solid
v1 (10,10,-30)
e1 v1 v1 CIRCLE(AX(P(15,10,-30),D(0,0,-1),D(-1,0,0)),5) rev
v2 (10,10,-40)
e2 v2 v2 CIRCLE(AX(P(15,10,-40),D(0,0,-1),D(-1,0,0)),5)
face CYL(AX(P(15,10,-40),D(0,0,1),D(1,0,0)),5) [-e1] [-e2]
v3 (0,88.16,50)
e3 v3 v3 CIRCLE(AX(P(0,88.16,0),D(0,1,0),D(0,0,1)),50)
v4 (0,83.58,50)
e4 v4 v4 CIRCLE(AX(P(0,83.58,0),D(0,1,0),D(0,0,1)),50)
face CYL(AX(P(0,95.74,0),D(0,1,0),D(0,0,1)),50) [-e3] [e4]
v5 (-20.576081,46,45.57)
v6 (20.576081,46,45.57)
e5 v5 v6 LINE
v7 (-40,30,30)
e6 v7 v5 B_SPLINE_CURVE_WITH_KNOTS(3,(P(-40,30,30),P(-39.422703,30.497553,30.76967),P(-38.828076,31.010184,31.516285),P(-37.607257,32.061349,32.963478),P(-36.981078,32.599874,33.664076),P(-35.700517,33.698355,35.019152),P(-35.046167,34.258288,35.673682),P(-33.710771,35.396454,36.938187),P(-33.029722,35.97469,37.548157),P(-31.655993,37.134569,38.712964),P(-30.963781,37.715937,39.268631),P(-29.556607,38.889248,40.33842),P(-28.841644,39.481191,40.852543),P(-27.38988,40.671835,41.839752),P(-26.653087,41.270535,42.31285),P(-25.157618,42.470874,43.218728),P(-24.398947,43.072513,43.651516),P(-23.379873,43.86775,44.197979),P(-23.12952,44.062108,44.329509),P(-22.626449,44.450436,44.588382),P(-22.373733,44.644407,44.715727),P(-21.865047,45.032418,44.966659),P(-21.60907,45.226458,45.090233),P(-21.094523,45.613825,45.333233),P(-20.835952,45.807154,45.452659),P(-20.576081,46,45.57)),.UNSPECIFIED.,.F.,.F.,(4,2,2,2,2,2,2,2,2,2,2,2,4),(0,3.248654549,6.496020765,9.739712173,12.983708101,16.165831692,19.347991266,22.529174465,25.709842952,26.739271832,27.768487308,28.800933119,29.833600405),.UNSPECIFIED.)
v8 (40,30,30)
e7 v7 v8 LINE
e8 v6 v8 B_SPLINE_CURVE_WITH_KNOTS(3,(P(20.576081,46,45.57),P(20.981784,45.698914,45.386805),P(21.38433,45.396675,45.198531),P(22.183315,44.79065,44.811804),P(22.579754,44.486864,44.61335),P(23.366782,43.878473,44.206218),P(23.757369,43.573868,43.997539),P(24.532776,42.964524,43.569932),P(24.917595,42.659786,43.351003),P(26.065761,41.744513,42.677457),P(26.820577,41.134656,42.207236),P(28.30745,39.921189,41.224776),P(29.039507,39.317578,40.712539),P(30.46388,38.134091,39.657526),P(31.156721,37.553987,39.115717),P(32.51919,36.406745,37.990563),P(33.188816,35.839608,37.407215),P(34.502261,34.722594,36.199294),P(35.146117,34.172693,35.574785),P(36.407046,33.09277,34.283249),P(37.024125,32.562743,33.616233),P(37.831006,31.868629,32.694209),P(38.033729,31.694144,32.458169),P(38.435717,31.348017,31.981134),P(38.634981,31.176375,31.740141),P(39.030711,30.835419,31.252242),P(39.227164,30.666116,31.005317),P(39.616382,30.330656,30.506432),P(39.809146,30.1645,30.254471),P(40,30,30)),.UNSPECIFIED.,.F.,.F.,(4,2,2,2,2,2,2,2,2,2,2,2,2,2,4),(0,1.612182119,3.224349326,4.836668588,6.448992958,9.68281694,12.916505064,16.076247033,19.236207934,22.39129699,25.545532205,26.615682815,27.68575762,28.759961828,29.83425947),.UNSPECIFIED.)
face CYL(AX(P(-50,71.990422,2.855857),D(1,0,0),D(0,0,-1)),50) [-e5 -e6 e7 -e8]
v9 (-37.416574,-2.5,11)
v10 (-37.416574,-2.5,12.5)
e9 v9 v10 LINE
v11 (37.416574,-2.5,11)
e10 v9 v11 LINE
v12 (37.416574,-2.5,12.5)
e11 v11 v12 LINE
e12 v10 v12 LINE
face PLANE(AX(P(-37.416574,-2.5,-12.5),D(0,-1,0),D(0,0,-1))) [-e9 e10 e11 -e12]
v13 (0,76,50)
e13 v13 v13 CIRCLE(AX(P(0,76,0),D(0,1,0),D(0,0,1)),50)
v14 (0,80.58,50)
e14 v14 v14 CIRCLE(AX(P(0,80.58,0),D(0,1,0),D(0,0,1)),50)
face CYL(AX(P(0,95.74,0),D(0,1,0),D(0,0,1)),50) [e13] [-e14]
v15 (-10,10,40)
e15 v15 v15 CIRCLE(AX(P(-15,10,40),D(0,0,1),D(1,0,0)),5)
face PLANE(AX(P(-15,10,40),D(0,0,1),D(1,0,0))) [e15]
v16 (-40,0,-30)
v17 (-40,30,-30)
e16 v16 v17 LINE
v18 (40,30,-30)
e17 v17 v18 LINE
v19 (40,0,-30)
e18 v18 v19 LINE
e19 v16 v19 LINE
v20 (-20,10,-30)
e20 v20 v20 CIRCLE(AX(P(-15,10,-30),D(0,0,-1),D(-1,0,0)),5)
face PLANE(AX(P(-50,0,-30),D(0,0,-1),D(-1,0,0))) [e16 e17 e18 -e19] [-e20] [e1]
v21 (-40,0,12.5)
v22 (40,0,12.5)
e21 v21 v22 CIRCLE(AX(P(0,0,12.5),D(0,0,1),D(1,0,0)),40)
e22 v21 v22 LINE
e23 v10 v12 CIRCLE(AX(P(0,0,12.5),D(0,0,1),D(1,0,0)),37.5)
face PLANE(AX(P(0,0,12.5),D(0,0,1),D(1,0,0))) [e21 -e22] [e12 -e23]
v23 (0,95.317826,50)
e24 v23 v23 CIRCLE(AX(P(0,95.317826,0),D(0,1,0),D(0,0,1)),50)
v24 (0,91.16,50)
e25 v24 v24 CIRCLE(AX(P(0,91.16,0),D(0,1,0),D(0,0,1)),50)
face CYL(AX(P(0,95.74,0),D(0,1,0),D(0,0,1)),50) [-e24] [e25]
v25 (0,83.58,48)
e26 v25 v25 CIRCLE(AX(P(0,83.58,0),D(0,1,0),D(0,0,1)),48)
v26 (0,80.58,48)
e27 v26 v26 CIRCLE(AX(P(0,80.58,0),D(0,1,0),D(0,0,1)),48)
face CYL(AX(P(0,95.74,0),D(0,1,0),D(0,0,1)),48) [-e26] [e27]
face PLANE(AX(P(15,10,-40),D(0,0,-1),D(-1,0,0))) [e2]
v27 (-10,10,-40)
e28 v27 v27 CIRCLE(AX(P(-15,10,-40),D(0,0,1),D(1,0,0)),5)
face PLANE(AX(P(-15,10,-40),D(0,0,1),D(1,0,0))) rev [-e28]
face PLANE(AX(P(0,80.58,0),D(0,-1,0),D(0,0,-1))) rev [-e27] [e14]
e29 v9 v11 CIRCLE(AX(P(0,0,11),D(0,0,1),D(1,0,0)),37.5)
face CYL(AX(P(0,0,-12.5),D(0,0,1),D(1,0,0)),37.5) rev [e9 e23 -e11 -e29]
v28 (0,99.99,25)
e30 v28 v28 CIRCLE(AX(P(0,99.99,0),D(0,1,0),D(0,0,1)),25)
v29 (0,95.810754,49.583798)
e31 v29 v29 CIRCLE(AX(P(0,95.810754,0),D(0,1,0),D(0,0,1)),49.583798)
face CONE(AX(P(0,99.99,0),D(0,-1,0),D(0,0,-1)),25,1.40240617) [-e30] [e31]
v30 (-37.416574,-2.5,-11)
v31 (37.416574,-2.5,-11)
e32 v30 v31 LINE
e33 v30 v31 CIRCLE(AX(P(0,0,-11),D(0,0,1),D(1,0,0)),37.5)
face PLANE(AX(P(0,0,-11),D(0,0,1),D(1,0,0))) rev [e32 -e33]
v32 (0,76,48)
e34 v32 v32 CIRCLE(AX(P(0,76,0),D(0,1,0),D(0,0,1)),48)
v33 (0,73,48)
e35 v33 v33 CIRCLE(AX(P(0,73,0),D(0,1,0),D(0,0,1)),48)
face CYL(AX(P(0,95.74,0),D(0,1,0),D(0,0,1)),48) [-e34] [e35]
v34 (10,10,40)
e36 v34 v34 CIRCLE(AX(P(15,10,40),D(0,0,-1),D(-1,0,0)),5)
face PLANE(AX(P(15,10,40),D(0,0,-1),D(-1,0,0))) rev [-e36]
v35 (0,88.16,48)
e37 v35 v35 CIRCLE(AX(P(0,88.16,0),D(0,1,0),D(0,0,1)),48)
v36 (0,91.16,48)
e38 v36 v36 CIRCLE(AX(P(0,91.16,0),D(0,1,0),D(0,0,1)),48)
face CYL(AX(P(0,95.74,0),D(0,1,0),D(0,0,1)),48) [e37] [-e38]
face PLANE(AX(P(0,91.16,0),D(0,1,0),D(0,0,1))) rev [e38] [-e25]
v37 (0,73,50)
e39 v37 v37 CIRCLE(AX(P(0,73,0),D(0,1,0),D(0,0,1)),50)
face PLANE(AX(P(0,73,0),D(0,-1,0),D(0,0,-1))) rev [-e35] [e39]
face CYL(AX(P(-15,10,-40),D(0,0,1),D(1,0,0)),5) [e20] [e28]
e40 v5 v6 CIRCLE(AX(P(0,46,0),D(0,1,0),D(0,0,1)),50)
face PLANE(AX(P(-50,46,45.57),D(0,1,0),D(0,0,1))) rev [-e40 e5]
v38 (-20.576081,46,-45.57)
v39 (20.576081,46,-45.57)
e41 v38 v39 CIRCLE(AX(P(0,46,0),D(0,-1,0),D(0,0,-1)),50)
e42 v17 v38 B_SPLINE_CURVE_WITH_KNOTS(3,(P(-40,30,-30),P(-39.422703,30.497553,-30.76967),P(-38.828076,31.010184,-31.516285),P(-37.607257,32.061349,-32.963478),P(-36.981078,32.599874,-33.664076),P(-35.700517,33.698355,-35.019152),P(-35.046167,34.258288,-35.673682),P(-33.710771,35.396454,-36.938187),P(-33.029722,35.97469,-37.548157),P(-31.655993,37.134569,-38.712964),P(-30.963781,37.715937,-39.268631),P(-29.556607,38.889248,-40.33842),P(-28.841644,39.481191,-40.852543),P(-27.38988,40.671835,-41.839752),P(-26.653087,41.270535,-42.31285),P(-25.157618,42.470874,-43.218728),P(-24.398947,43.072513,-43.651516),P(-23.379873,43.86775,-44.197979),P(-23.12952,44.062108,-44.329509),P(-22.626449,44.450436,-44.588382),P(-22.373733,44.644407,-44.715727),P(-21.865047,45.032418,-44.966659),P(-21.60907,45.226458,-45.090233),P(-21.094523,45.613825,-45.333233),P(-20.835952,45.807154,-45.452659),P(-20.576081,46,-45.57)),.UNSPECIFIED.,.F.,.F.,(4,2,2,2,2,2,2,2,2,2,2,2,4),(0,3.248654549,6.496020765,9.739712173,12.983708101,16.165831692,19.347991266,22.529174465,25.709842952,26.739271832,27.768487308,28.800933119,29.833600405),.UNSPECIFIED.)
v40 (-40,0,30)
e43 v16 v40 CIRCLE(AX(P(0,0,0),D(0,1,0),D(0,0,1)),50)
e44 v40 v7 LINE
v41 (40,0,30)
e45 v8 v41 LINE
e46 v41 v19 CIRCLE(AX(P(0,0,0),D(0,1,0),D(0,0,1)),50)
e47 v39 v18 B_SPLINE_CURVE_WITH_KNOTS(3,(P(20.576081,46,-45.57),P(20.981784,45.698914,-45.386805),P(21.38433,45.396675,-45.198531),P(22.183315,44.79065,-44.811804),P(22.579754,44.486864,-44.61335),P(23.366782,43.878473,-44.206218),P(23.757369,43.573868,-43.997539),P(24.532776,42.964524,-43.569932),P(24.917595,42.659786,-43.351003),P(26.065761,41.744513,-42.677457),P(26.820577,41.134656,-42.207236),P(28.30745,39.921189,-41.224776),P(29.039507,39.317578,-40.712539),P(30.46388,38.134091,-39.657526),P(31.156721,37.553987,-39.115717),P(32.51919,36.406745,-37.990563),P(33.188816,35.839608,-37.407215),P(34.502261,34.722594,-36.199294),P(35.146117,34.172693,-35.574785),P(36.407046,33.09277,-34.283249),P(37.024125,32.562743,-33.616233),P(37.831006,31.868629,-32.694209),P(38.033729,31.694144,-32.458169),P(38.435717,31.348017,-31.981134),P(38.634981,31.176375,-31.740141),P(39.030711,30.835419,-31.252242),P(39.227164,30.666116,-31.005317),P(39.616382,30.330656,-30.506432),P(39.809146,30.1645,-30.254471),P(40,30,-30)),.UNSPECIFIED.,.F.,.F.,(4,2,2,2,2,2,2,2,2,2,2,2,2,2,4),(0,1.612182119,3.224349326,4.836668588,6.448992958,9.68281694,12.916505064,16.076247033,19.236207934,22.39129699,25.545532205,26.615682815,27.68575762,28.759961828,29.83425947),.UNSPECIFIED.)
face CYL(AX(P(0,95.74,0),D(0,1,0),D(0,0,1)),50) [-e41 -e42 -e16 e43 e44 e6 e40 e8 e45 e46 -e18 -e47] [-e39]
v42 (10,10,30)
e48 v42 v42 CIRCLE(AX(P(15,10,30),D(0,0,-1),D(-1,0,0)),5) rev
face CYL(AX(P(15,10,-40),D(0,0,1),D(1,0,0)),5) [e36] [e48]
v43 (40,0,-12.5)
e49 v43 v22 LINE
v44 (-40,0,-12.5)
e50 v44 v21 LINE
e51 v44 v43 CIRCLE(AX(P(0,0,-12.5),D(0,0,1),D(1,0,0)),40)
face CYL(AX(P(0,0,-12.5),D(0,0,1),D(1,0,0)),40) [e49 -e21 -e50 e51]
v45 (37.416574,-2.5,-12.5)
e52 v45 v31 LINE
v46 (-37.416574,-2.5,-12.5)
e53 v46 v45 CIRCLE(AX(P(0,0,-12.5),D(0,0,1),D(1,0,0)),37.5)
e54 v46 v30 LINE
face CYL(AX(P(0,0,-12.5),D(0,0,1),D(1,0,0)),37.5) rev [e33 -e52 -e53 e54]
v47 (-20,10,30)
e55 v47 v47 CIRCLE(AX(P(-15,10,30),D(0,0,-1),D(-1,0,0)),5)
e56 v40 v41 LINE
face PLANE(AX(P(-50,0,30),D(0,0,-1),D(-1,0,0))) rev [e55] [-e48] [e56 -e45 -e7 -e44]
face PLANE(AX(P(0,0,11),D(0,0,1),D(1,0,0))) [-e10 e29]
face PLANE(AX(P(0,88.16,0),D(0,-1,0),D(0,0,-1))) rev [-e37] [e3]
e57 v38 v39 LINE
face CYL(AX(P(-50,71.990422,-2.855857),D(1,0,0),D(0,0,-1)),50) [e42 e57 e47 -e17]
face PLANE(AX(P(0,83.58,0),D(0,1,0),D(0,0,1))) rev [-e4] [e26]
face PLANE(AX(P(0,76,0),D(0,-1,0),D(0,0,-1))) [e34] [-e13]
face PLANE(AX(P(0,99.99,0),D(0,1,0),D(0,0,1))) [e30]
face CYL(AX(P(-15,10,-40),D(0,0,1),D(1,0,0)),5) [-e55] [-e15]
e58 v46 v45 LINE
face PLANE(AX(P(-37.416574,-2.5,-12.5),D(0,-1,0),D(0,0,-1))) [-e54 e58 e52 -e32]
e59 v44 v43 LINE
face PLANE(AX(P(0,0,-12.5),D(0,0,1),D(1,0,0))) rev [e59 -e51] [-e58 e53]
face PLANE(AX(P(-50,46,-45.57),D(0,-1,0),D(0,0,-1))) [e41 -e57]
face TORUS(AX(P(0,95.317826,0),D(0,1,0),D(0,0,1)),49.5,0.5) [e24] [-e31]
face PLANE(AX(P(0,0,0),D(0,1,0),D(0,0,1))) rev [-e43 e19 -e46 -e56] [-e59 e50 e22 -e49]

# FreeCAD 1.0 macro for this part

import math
import FreeCAD as App
import Part
import Sketcher
Q = App.Units.Quantity

doc = App.newDocument("Part")
params = doc.addObject("Spreadsheet::Sheet", "Params")
for row, (alias, value) in enumerate([
    ("sketch1_radius", "0.5 mm"),
    ("sketch1_width", "2 mm"),
    ("sketch1_width2", "50 mm"),
    ("sketch1_width3", "25 mm"),
    ("sketch1_height", "3 mm"),
    ("revolution_angle", "360 deg"),
    ("sketch2_radius", "50 mm"),
    ("sketch2_width", "30 mm"),
    ("sketch2_width2", "46 mm"),
    ("sketch2_height", "20 mm"),
    ("sketch2_height2", "4.43 mm"),
    ("sketch3_radius", "40 mm"),
    ("sketch3_radius2", "37.5 mm"),
    ("pad1_length", "12.5 mm"),
    ("pad1_length2", "12.5 mm"),
    ("sketch4_radius", "37.5 mm"),
    ("pad2_length", "11 mm"),
    ("pad2_length2", "11 mm"),
    ("sketch5_diameter", "10 mm"),
    ("pad3_length", "40 mm"),
    ("pad3_length2", "40 mm"),
], start=1):
    params.set(f"A{row}", alias)
    params.set(f"B{row}", "=" + value)
    params.setAlias(f"B{row}", alias)

body = doc.addObject("PartDesign::Body", "Body")

# Sketch on XY plane
sketch1 = body.newObject("Sketcher::SketchObject", "Sketch")
sketch1.AttachmentSupport = (doc.getObject("XY_Plane"), [""])
sketch1.MapMode = "FlatFace"
sketch1.addGeometry([
    Part.ArcOfCircle(Part.Circle(App.Vector(-49.5, 95.32, 0), App.Vector(0, 0, 1), 0.5), math.radians(100), math.radians(180)),  # 0
    Part.LineSegment(App.Vector(-50, 95.32, 0), App.Vector(-50, 91.16, 0)),  # 1
    Part.LineSegment(App.Vector(-50, 91.16, 0), App.Vector(-48, 91.16, 0)),  # 2
    Part.LineSegment(App.Vector(-48, 91.16, 0), App.Vector(-48, 88.16, 0)),  # 3
    Part.LineSegment(App.Vector(-48, 88.16, 0), App.Vector(-50, 88.16, 0)),  # 4
    Part.LineSegment(App.Vector(-50, 88.16, 0), App.Vector(-50, 83.58, 0)),  # 5
    Part.LineSegment(App.Vector(-50, 83.58, 0), App.Vector(-48, 83.58, 0)),  # 6
    Part.LineSegment(App.Vector(-48, 83.58, 0), App.Vector(-48, 80.58, 0)),  # 7
    Part.LineSegment(App.Vector(-48, 80.58, 0), App.Vector(-50, 80.58, 0)),  # 8
    Part.LineSegment(App.Vector(-50, 80.58, 0), App.Vector(-50, 76, 0)),  # 9
    Part.LineSegment(App.Vector(-50, 76, 0), App.Vector(-48, 76, 0)),  # 10
    Part.LineSegment(App.Vector(-48, 76, 0), App.Vector(-48, 73, 0)),  # 11
    Part.LineSegment(App.Vector(-48, 73, 0), App.Vector(-50, 73, 0)),  # 12
    Part.LineSegment(App.Vector(-50, 73, 0), App.Vector(-50, 0, 0)),  # 13
    Part.LineSegment(App.Vector(-50, 0, 0), App.Vector(0, 0, 0)),  # 14
    Part.LineSegment(App.Vector(0, 0, 0), App.Vector(0, 99.99, 0)),  # 15
    Part.LineSegment(App.Vector(0, 99.99, 0), App.Vector(-25, 99.99, 0)),  # 16
    Part.LineSegment(App.Vector(-25, 99.99, 0), App.Vector(-49.58, 95.81, 0)),  # 17
], False)
sketch1.addConstraint([
    Sketcher.Constraint("Tangent", 0, 2, 1, 1),
    Sketcher.Constraint("Coincident", 1, 2, 2, 1),
    Sketcher.Constraint("Coincident", 2, 2, 3, 1),
    Sketcher.Constraint("Coincident", 3, 2, 4, 1),
    Sketcher.Constraint("Coincident", 4, 2, 5, 1),
    Sketcher.Constraint("Coincident", 5, 2, 6, 1),
    Sketcher.Constraint("Coincident", 6, 2, 7, 1),
    Sketcher.Constraint("Coincident", 7, 2, 8, 1),
    Sketcher.Constraint("Coincident", 8, 2, 9, 1),
    Sketcher.Constraint("Coincident", 9, 2, 10, 1),
    Sketcher.Constraint("Coincident", 10, 2, 11, 1),
    Sketcher.Constraint("Coincident", 11, 2, 12, 1),
    Sketcher.Constraint("Coincident", 12, 2, 13, 1),
    Sketcher.Constraint("Coincident", 13, 2, 14, 1),
    Sketcher.Constraint("Coincident", 14, 2, 15, 1),
    Sketcher.Constraint("Coincident", 15, 2, 16, 1),
    Sketcher.Constraint("Coincident", 16, 2, 17, 1),
    Sketcher.Constraint("Tangent", 17, 2, 0, 1),
    Sketcher.Constraint("Vertical", 1),
    Sketcher.Constraint("Horizontal", 2),
    Sketcher.Constraint("Vertical", 3),
    Sketcher.Constraint("Horizontal", 4),
    Sketcher.Constraint("Vertical", 5),
    Sketcher.Constraint("Horizontal", 6),
    Sketcher.Constraint("Vertical", 7),
    Sketcher.Constraint("Horizontal", 8),
    Sketcher.Constraint("Vertical", 9),
    Sketcher.Constraint("Horizontal", 10),
    Sketcher.Constraint("Vertical", 11),
    Sketcher.Constraint("Horizontal", 12),
    Sketcher.Constraint("Vertical", 13),
    Sketcher.Constraint("Horizontal", 14),
    Sketcher.Constraint("Vertical", 15),
    Sketcher.Constraint("Horizontal", 16),
    Sketcher.Constraint("Coincident", 14, 2, -1, 1),
    Sketcher.Constraint("Vertical", 1, 2, 4, 2),
    Sketcher.Constraint("Vertical", 3, 2, 6, 2),
    Sketcher.Constraint("Vertical", 5, 2, 8, 2),
    Sketcher.Constraint("Vertical", 7, 2, 10, 2),
    Sketcher.Constraint("Vertical", 9, 2, 12, 2),
    Sketcher.Constraint("Equal", 3, 7),
    Sketcher.Constraint("Equal", 5, 9),
    Sketcher.Constraint("Equal", 7, 11),
    Sketcher.Constraint("Radius", 0, Q("0.5 mm")),
    Sketcher.Constraint("DistanceX", 2, 1, 2, 2, Q("2 mm")),
    Sketcher.Constraint("DistanceX", 14, 1, 14, 2, Q("50 mm")),
    Sketcher.Constraint("DistanceX", 16, 2, 16, 1, Q("25 mm")),
    Sketcher.Constraint("DistanceY", 3, 2, 3, 1, Q("3 mm")),
    Sketcher.Constraint("DistanceY", 13, 2, 13, 1, Q("73 mm")),
    Sketcher.Constraint("DistanceY", 5, 2, 5, 1, Q("4.58 mm")),
    Sketcher.Constraint("DistanceY", 15, 1, 15, 2, Q("99.99 mm")),
    Sketcher.Constraint("DistanceY", 1, 2, 1, 1, Q("4.157826 mm")),
])
sketch1.setExpression("Constraints[43]", "Params.sketch1_radius")
sketch1.setExpression("Constraints[44]", "Params.sketch1_width")
sketch1.setExpression("Constraints[45]", "Params.sketch1_width2")
sketch1.setExpression("Constraints[46]", "Params.sketch1_width3")
sketch1.setExpression("Constraints[47]", "Params.sketch1_height")
revolution = body.newObject("PartDesign::Revolution", "Revolution")
revolution.Profile = sketch1
revolution.ReferenceAxis = (sketch1, ["V_Axis"])
revolution.setExpression("Angle", "Params.revolution_angle")

# Sketch on YZ plane
sketch2 = body.newObject("Sketcher::SketchObject", "Sketch001")
sketch2.AttachmentSupport = (doc.getObject("YZ_Plane"), [""])
sketch2.MapMode = "FlatFace"
sketch2.addGeometry([
    Part.LineSegment(App.Vector(30, -30, 0), App.Vector(0, -30, 0)),  # 0
    Part.LineSegment(App.Vector(0, -30, 0), App.Vector(0, -50, 0)),  # 1
    Part.LineSegment(App.Vector(0, -50, 0), App.Vector(46, -50, 0)),  # 2
    Part.LineSegment(App.Vector(46, -50, 0), App.Vector(46, -45.6, 0)),  # 3
    Part.ArcOfCircle(Part.Circle(App.Vector(72, -2.9, 0), App.Vector(0, 0, 1), 50), math.radians(-147), math.radians(-121)),  # 4
    Part.LineSegment(App.Vector(0, 30, 0), App.Vector(30, 30, 0)),  # 5
    Part.ArcOfCircle(Part.Circle(App.Vector(72, 2.9, 0), App.Vector(0, 0, 1), 50), math.radians(121), math.radians(147)),  # 6
    Part.LineSegment(App.Vector(46, 45.6, 0), App.Vector(46, 50, 0)),  # 7
    Part.LineSegment(App.Vector(46, 50, 0), App.Vector(0, 50, 0)),  # 8
    Part.LineSegment(App.Vector(0, 50, 0), App.Vector(0, 30, 0)),  # 9
], False)
sketch2.addConstraint([
    Sketcher.Constraint("Coincident", 0, 2, 1, 1),
    Sketcher.Constraint("Coincident", 1, 2, 2, 1),
    Sketcher.Constraint("Coincident", 2, 2, 3, 1),
    Sketcher.Constraint("Coincident", 3, 2, 4, 2),
    Sketcher.Constraint("Coincident", 4, 1, 0, 1),
    Sketcher.Constraint("Coincident", 5, 2, 6, 2),
    Sketcher.Constraint("Coincident", 6, 1, 7, 1),
    Sketcher.Constraint("Coincident", 7, 2, 8, 1),
    Sketcher.Constraint("Coincident", 8, 2, 9, 1),
    Sketcher.Constraint("Coincident", 9, 2, 5, 1),
    Sketcher.Constraint("Horizontal", 0),
    Sketcher.Constraint("Vertical", 1),
    Sketcher.Constraint("Horizontal", 2),
    Sketcher.Constraint("Vertical", 3),
    Sketcher.Constraint("Horizontal", 5),
    Sketcher.Constraint("Vertical", 7),
    Sketcher.Constraint("Horizontal", 8),
    Sketcher.Constraint("Vertical", 9),
    Sketcher.Constraint("Equal", 4, 6),
    Sketcher.Constraint("Symmetric", 1, 2, 8, 2, -1, 1),
    Sketcher.Constraint("Symmetric", 4, 3, 6, 3, -1),
    Sketcher.Constraint("Symmetric", 0, 2, 9, 2, -1),
    Sketcher.Constraint("Vertical", 3, 2, 6, 1),
    Sketcher.Constraint("Radius", 4, Q("50 mm")),
    Sketcher.Constraint("DistanceX", 0, 2, 0, 1, Q("30 mm")),
    Sketcher.Constraint("DistanceX", 2, 1, 2, 2, Q("46 mm")),
    Sketcher.Constraint("DistanceY", 1, 2, 1, 1, Q("20 mm")),
    Sketcher.Constraint("DistanceY", 0, 2, -1, 1, Q("30 mm")),
    Sketcher.Constraint("DistanceY", 3, 1, 3, 2, Q("4.43 mm")),
])
sketch2.setExpression("Constraints[23]", "Params.sketch2_radius")
sketch2.setExpression("Constraints[24]", "Params.sketch2_width")
sketch2.setExpression("Constraints[25]", "Params.sketch2_width2")
sketch2.setExpression("Constraints[26]", "Params.sketch2_height")
sketch2.setExpression("Constraints[28]", "Params.sketch2_height2")
pocket1 = body.newObject("PartDesign::Pocket", "Pocket")
pocket1.Profile = sketch2
pocket1.Type = "ThroughAll"
pocket1.Midplane = True

# Sketch on XY plane
sketch3 = body.newObject("Sketcher::SketchObject", "Sketch002")
sketch3.AttachmentSupport = (doc.getObject("XY_Plane"), [""])
sketch3.MapMode = "FlatFace"
sketch3.addGeometry([
    Part.LineSegment(App.Vector(40, 0, 0), App.Vector(-40, 0, 0)),
    Part.ArcOfCircle(Part.Circle(App.Vector(0, 0, 0), App.Vector(0, 0, 1), 40), math.radians(180), math.radians(360)),
    Part.LineSegment(App.Vector(-37, -2, 0), App.Vector(37, -2, 0)),
    Part.ArcOfCircle(Part.Circle(App.Vector(0, 0, 0), App.Vector(0, 0, 1), 38), math.radians(-176), math.radians(-4)),
], False)
sketch3.addConstraint([
    Sketcher.Constraint("Coincident", 0, 1, 1, 2),
    Sketcher.Constraint("Coincident", 1, 1, 0, 2),
    Sketcher.Constraint("Coincident", 2, 1, 3, 1),
    Sketcher.Constraint("Coincident", 3, 2, 2, 2),
    Sketcher.Constraint("Horizontal", 0),
    Sketcher.Constraint("Horizontal", 2),
    Sketcher.Constraint("Coincident", 1, 3, -1, 1),
    Sketcher.Constraint("Coincident", 3, 3, -1, 1),
    Sketcher.Constraint("PointOnObject", 0, 1, -1),
    Sketcher.Constraint("Radius", 1, Q("40 mm")),
    Sketcher.Constraint("Radius", 3, Q("37.5 mm")),
    Sketcher.Constraint("DistanceY", 2, 1, -1, 1, Q("2.5 mm")),
])
sketch3.setExpression("Constraints[9]", "Params.sketch3_radius")
sketch3.setExpression("Constraints[10]", "Params.sketch3_radius2")
pad1 = body.newObject("PartDesign::Pad", "Pad")
pad1.Profile = sketch3
pad1.Type = "TwoLengths"
pad1.setExpression("Length", "Params.pad1_length")
pad1.setExpression("Length2", "Params.pad1_length2")

# Sketch on XY plane
sketch4 = body.newObject("Sketcher::SketchObject", "Sketch003")
sketch4.AttachmentSupport = (doc.getObject("XY_Plane"), [""])
sketch4.MapMode = "FlatFace"
sketch4.addGeometry([
    Part.LineSegment(App.Vector(37, -2, 0), App.Vector(-37, -2, 0)),
    Part.ArcOfCircle(Part.Circle(App.Vector(0, 0, 0), App.Vector(0, 0, 1), 38), math.radians(-176), math.radians(-4)),
], False)
sketch4.addConstraint([
    Sketcher.Constraint("Coincident", 0, 1, 1, 2),
    Sketcher.Constraint("Coincident", 1, 1, 0, 2),
    Sketcher.Constraint("Horizontal", 0),
    Sketcher.Constraint("Coincident", 1, 3, -1, 1),
    Sketcher.Constraint("Radius", 1, Q("37.5 mm")),
    Sketcher.Constraint("DistanceY", 0, 1, -1, 1, Q("2.5 mm")),
])
sketch4.setExpression("Constraints[4]", "Params.sketch4_radius")
pad2 = body.newObject("PartDesign::Pad", "Pad001")
pad2.Profile = sketch4
pad2.Type = "TwoLengths"
pad2.setExpression("Length", "Params.pad2_length")
pad2.setExpression("Length2", "Params.pad2_length2")

# Sketch on XY plane
sketch5 = body.newObject("Sketcher::SketchObject", "Sketch004")
sketch5.AttachmentSupport = (doc.getObject("XY_Plane"), [""])
sketch5.MapMode = "FlatFace"
sketch5.addGeometry([
    Part.Circle(App.Vector(-15, 10, 0), App.Vector(0, 0, 1), 5),
    Part.Circle(App.Vector(15, 10, 0), App.Vector(0, 0, 1), 5),
], False)
sketch5.addConstraint([
    Sketcher.Constraint("Equal", 0, 1),
    Sketcher.Constraint("Symmetric", 0, 3, 1, 3, -2),
    Sketcher.Constraint("Diameter", 0, Q("10 mm")),
    Sketcher.Constraint("DistanceX", 0, 3, -1, 1, Q("15 mm")),
    Sketcher.Constraint("DistanceY", -1, 1, 0, 3, Q("10 mm")),
])
sketch5.setExpression("Constraints[2]", "Params.sketch5_diameter")
pad3 = body.newObject("PartDesign::Pad", "Pad002")
pad3.Profile = sketch5
pad3.Type = "TwoLengths"
pad3.setExpression("Length", "Params.pad3_length")
pad3.setExpression("Length2", "Params.pad3_length2")

doc.recompute()
